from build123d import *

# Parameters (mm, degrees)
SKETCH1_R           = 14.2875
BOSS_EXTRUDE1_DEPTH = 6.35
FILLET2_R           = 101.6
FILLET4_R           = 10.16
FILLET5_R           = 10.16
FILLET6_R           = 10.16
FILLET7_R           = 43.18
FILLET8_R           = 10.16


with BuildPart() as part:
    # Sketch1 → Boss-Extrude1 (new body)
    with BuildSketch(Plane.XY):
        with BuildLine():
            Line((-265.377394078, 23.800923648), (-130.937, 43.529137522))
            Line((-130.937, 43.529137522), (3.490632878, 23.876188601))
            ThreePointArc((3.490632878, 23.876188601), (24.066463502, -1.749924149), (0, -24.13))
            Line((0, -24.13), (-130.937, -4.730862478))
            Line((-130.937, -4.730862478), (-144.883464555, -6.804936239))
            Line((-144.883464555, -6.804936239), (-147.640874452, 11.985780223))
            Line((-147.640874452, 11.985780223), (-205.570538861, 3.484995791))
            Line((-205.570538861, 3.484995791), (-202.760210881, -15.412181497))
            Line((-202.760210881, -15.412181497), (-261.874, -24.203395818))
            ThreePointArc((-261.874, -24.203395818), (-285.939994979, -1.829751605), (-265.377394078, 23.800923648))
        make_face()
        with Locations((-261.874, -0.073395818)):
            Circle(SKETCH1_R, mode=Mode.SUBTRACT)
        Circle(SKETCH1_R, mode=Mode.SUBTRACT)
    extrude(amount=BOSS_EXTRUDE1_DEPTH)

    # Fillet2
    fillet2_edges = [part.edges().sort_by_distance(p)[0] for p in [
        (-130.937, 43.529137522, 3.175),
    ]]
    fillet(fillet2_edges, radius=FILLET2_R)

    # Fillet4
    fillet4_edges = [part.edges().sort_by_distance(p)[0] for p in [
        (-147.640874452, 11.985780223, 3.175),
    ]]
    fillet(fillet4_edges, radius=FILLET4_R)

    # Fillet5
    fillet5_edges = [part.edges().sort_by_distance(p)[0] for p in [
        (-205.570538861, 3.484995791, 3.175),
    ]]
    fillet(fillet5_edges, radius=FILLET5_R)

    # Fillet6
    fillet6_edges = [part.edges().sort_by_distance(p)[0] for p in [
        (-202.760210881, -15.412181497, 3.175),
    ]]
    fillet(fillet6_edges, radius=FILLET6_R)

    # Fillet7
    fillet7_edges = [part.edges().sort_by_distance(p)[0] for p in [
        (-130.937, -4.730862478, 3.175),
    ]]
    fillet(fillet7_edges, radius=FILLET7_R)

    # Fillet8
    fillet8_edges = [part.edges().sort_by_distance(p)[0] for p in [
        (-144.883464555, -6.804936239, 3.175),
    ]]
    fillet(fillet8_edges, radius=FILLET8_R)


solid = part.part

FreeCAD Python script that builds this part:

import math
import FreeCAD as App
import Part
import Sketcher
Q = App.Units.Quantity


def edges_at(feature, points):
    """Names of the edges that pass closest to the given points."""
    edges = feature.Shape.Edges
    near = lambda p: min(range(len(edges)), key=lambda i: edges[i].distToShape(Part.Vertex(*p))[0])
    return sorted({f"Edge{near(p) + 1}" for p in points})

doc = App.newDocument("Part")
params = doc.addObject("Spreadsheet::Sheet", "Params")
for row, (alias, value) in enumerate([
    ("sketch1_radius", "0.95 in"),
    ("sketch1_diameter", "1.125 in"),
    ("pad1_length", "0.25 in"),
    ("fillet_radius", "4 in"),
    ("fillet2_radius", "0.4 in"),
    ("fillet3_radius", "0.4 in"),
    ("fillet4_radius", "0.4 in"),
    ("fillet5_radius", "1.7 in"),
    ("fillet6_radius", "0.4 in"),
], start=1):
    params.set(f"A{row}", alias)
    params.set(f"B{row}", "=" + value)
    params.setAlias(f"B{row}", alias)

body = doc.addObject("PartDesign::Body", "Body")

sketch1 = doc.addObject("Sketcher::SketchObject", "Sketch")
body.addObject(sketch1)
sketch1.AttachmentSupport = (doc.XY_Plane, [""])
sketch1.MapMode = "FlatFace"
sketch1.addGeometry(Part.LineSegment(App.Vector(-131, 44, 0), App.Vector(-265, 24, 0)), False)
sketch1.addGeometry(Part.ArcOfCircle(Part.Circle(App.Vector(-262, 0, 0), App.Vector(0, 0, 1), 24), math.radians(98), math.radians(270)), False)
sketch1.addGeometry(Part.LineSegment(App.Vector(-262, -24, 0), App.Vector(-203, -15, 0)), False)
sketch1.addGeometry(Part.LineSegment(App.Vector(-203, -15, 0), App.Vector(-206, 3, 0)), False)
sketch1.addGeometry(Part.LineSegment(App.Vector(-206, 3, 0), App.Vector(-148, 12, 0)), False)
sketch1.addGeometry(Part.LineSegment(App.Vector(-148, 12, 0), App.Vector(-145, -7, 0)), False)
sketch1.addGeometry(Part.LineSegment(App.Vector(-145, -7, 0), App.Vector(-131, -5, 0)), False)
sketch1.addGeometry(Part.LineSegment(App.Vector(-131, -5, 0), App.Vector(0, -24, 0)), False)
sketch1.addGeometry(Part.ArcOfCircle(Part.Circle(App.Vector(0, 0, 0), App.Vector(0, 0, 1), 24), math.radians(-90), math.radians(82)), False)
sketch1.addGeometry(Part.LineSegment(App.Vector(3, 24, 0), App.Vector(-131, 44, 0)), False)
sketch1.addGeometry(Part.Circle(App.Vector(-262, 0, 0), App.Vector(0, 0, 1), 14), False)
sketch1.addGeometry(Part.Circle(App.Vector(0, 0, 0), App.Vector(0, 0, 1), 14), False)
sketch1.addConstraint(Sketcher.Constraint("Tangent", 0, 2, 1, 1))
sketch1.addConstraint(Sketcher.Constraint("Coincident", 1, 2, 2, 1))
sketch1.addConstraint(Sketcher.Constraint("Coincident", 2, 2, 3, 1))
sketch1.addConstraint(Sketcher.Constraint("Coincident", 3, 2, 4, 1))
sketch1.addConstraint(Sketcher.Constraint("Coincident", 4, 2, 5, 1))
sketch1.addConstraint(Sketcher.Constraint("Coincident", 5, 2, 6, 1))
sketch1.addConstraint(Sketcher.Constraint("Coincident", 6, 2, 7, 1))
sketch1.addConstraint(Sketcher.Constraint("Coincident", 7, 2, 8, 1))
sketch1.addConstraint(Sketcher.Constraint("Tangent", 8, 2, 9, 1))
sketch1.addConstraint(Sketcher.Constraint("Coincident", 9, 2, 0, 1))
sketch1.addConstraint(Sketcher.Constraint("Coincident", 8, 3, -1, 1))
sketch1.addConstraint(Sketcher.Constraint("Coincident", 11, 3, -1, 1))
sketch1.addConstraint(Sketcher.Constraint("Coincident", 10, 3, 1, 3))
sketch1.addConstraint(Sketcher.Constraint("Equal", 1, 8))
sketch1.addConstraint(Sketcher.Constraint("Equal", 10, 11))
sketch1.addConstraint(Sketcher.Constraint("PointOnObject", 7, 2, -2))
sketch1.addConstraint(Sketcher.Constraint("Perpendicular", 2, 3))
sketch1.addConstraint(Sketcher.Constraint("Parallel", 0, 4))
sketch1.addConstraint(Sketcher.Constraint("Perpendicular", 4, 5))
sketch1.addConstraint(Sketcher.Constraint("Perpendicular", 3, 6))
sketch1.addConstraint(Sketcher.Constraint("Vertical", 10, 3, 1, 2))
sketch1.addConstraint(Sketcher.Constraint("Vertical", 6, 2, 9, 2))
sketch1.addConstraint(Sketcher.Constraint("Radius", 1, Q("0.95 in")))
sketch1.addConstraint(Sketcher.Constraint("Diameter", 10, Q("1.125 in")))
sketch1.addConstraint(Sketcher.Constraint("DistanceY", 6, 2, 9, 2, Q("1.9 in")))
sketch1.addConstraint(Sketcher.Constraint("DistanceX", 1, 3, -1, 1, Q("10.31 in")))
sketch1.addConstraint(Sketcher.Constraint("DistanceX", 6, 2, -1, 1, Q("5.155 in")))
sketch1.addConstraint(Sketcher.Constraint("DistanceX", 5, 2, 8, 2, Q("5.8414999 in")))
sketch1.addConstraint(Sketcher.Constraint("Distance", 4, 58.550059))
sketch1.addConstraint(Sketcher.Constraint("Distance", 7, 132.366251))
sketch1.addConstraint(Sketcher.Constraint("DistanceX", 2, 2, -1, 1, 202.760211))
sketch1.addConstraint(Sketcher.Constraint("DistanceY", 2, 2, -1, 1, 15.412181))
sketch1.addConstraint(Sketcher.Constraint("DistanceX", 3, 2, -1, 1, 205.570539))
sketch1.setExpression("Constraints[22]", "Params.sketch1_radius")
sketch1.setExpression("Constraints[23]", "Params.sketch1_diameter")
pad1 = doc.addObject("PartDesign::Pad", "Pad")
body.addObject(pad1)
pad1.Profile = sketch1
pad1.setExpression("Length", "Params.pad1_length")
doc.recompute()

fillet = doc.addObject("PartDesign::Fillet", "Fillet")
body.addObject(fillet)
fillet.Base = (pad1, edges_at(pad1, [(-130.937, 43.529, 3.175)]))
fillet.setExpression("Radius", "Params.fillet_radius")
doc.recompute()

fillet2 = doc.addObject("PartDesign::Fillet", "Fillet001")
body.addObject(fillet2)
fillet2.Base = (fillet, edges_at(fillet, [(-147.641, 11.986, 3.175)]))
fillet2.setExpression("Radius", "Params.fillet2_radius")
doc.recompute()

fillet3 = doc.addObject("PartDesign::Fillet", "Fillet002")
body.addObject(fillet3)
fillet3.Base = (fillet2, edges_at(fillet2, [(-205.571, 3.485, 3.175)]))
fillet3.setExpression("Radius", "Params.fillet3_radius")
doc.recompute()

fillet4 = doc.addObject("PartDesign::Fillet", "Fillet003")
body.addObject(fillet4)
fillet4.Base = (fillet3, edges_at(fillet3, [(-202.76, -15.412, 3.175)]))
fillet4.setExpression("Radius", "Params.fillet4_radius")
doc.recompute()

fillet5 = doc.addObject("PartDesign::Fillet", "Fillet004")
body.addObject(fillet5)
fillet5.Base = (fillet4, edges_at(fillet4, [(-130.937, -4.731, 3.175)]))
fillet5.setExpression("Radius", "Params.fillet5_radius")
doc.recompute()

fillet6 = doc.addObject("PartDesign::Fillet", "Fillet005")
body.addObject(fillet6)
fillet6.Base = (fillet5, edges_at(fillet5, [(-144.883, -6.805, 3.175)]))
fillet6.setExpression("Radius", "Params.fillet6_radius")

doc.recompute()
